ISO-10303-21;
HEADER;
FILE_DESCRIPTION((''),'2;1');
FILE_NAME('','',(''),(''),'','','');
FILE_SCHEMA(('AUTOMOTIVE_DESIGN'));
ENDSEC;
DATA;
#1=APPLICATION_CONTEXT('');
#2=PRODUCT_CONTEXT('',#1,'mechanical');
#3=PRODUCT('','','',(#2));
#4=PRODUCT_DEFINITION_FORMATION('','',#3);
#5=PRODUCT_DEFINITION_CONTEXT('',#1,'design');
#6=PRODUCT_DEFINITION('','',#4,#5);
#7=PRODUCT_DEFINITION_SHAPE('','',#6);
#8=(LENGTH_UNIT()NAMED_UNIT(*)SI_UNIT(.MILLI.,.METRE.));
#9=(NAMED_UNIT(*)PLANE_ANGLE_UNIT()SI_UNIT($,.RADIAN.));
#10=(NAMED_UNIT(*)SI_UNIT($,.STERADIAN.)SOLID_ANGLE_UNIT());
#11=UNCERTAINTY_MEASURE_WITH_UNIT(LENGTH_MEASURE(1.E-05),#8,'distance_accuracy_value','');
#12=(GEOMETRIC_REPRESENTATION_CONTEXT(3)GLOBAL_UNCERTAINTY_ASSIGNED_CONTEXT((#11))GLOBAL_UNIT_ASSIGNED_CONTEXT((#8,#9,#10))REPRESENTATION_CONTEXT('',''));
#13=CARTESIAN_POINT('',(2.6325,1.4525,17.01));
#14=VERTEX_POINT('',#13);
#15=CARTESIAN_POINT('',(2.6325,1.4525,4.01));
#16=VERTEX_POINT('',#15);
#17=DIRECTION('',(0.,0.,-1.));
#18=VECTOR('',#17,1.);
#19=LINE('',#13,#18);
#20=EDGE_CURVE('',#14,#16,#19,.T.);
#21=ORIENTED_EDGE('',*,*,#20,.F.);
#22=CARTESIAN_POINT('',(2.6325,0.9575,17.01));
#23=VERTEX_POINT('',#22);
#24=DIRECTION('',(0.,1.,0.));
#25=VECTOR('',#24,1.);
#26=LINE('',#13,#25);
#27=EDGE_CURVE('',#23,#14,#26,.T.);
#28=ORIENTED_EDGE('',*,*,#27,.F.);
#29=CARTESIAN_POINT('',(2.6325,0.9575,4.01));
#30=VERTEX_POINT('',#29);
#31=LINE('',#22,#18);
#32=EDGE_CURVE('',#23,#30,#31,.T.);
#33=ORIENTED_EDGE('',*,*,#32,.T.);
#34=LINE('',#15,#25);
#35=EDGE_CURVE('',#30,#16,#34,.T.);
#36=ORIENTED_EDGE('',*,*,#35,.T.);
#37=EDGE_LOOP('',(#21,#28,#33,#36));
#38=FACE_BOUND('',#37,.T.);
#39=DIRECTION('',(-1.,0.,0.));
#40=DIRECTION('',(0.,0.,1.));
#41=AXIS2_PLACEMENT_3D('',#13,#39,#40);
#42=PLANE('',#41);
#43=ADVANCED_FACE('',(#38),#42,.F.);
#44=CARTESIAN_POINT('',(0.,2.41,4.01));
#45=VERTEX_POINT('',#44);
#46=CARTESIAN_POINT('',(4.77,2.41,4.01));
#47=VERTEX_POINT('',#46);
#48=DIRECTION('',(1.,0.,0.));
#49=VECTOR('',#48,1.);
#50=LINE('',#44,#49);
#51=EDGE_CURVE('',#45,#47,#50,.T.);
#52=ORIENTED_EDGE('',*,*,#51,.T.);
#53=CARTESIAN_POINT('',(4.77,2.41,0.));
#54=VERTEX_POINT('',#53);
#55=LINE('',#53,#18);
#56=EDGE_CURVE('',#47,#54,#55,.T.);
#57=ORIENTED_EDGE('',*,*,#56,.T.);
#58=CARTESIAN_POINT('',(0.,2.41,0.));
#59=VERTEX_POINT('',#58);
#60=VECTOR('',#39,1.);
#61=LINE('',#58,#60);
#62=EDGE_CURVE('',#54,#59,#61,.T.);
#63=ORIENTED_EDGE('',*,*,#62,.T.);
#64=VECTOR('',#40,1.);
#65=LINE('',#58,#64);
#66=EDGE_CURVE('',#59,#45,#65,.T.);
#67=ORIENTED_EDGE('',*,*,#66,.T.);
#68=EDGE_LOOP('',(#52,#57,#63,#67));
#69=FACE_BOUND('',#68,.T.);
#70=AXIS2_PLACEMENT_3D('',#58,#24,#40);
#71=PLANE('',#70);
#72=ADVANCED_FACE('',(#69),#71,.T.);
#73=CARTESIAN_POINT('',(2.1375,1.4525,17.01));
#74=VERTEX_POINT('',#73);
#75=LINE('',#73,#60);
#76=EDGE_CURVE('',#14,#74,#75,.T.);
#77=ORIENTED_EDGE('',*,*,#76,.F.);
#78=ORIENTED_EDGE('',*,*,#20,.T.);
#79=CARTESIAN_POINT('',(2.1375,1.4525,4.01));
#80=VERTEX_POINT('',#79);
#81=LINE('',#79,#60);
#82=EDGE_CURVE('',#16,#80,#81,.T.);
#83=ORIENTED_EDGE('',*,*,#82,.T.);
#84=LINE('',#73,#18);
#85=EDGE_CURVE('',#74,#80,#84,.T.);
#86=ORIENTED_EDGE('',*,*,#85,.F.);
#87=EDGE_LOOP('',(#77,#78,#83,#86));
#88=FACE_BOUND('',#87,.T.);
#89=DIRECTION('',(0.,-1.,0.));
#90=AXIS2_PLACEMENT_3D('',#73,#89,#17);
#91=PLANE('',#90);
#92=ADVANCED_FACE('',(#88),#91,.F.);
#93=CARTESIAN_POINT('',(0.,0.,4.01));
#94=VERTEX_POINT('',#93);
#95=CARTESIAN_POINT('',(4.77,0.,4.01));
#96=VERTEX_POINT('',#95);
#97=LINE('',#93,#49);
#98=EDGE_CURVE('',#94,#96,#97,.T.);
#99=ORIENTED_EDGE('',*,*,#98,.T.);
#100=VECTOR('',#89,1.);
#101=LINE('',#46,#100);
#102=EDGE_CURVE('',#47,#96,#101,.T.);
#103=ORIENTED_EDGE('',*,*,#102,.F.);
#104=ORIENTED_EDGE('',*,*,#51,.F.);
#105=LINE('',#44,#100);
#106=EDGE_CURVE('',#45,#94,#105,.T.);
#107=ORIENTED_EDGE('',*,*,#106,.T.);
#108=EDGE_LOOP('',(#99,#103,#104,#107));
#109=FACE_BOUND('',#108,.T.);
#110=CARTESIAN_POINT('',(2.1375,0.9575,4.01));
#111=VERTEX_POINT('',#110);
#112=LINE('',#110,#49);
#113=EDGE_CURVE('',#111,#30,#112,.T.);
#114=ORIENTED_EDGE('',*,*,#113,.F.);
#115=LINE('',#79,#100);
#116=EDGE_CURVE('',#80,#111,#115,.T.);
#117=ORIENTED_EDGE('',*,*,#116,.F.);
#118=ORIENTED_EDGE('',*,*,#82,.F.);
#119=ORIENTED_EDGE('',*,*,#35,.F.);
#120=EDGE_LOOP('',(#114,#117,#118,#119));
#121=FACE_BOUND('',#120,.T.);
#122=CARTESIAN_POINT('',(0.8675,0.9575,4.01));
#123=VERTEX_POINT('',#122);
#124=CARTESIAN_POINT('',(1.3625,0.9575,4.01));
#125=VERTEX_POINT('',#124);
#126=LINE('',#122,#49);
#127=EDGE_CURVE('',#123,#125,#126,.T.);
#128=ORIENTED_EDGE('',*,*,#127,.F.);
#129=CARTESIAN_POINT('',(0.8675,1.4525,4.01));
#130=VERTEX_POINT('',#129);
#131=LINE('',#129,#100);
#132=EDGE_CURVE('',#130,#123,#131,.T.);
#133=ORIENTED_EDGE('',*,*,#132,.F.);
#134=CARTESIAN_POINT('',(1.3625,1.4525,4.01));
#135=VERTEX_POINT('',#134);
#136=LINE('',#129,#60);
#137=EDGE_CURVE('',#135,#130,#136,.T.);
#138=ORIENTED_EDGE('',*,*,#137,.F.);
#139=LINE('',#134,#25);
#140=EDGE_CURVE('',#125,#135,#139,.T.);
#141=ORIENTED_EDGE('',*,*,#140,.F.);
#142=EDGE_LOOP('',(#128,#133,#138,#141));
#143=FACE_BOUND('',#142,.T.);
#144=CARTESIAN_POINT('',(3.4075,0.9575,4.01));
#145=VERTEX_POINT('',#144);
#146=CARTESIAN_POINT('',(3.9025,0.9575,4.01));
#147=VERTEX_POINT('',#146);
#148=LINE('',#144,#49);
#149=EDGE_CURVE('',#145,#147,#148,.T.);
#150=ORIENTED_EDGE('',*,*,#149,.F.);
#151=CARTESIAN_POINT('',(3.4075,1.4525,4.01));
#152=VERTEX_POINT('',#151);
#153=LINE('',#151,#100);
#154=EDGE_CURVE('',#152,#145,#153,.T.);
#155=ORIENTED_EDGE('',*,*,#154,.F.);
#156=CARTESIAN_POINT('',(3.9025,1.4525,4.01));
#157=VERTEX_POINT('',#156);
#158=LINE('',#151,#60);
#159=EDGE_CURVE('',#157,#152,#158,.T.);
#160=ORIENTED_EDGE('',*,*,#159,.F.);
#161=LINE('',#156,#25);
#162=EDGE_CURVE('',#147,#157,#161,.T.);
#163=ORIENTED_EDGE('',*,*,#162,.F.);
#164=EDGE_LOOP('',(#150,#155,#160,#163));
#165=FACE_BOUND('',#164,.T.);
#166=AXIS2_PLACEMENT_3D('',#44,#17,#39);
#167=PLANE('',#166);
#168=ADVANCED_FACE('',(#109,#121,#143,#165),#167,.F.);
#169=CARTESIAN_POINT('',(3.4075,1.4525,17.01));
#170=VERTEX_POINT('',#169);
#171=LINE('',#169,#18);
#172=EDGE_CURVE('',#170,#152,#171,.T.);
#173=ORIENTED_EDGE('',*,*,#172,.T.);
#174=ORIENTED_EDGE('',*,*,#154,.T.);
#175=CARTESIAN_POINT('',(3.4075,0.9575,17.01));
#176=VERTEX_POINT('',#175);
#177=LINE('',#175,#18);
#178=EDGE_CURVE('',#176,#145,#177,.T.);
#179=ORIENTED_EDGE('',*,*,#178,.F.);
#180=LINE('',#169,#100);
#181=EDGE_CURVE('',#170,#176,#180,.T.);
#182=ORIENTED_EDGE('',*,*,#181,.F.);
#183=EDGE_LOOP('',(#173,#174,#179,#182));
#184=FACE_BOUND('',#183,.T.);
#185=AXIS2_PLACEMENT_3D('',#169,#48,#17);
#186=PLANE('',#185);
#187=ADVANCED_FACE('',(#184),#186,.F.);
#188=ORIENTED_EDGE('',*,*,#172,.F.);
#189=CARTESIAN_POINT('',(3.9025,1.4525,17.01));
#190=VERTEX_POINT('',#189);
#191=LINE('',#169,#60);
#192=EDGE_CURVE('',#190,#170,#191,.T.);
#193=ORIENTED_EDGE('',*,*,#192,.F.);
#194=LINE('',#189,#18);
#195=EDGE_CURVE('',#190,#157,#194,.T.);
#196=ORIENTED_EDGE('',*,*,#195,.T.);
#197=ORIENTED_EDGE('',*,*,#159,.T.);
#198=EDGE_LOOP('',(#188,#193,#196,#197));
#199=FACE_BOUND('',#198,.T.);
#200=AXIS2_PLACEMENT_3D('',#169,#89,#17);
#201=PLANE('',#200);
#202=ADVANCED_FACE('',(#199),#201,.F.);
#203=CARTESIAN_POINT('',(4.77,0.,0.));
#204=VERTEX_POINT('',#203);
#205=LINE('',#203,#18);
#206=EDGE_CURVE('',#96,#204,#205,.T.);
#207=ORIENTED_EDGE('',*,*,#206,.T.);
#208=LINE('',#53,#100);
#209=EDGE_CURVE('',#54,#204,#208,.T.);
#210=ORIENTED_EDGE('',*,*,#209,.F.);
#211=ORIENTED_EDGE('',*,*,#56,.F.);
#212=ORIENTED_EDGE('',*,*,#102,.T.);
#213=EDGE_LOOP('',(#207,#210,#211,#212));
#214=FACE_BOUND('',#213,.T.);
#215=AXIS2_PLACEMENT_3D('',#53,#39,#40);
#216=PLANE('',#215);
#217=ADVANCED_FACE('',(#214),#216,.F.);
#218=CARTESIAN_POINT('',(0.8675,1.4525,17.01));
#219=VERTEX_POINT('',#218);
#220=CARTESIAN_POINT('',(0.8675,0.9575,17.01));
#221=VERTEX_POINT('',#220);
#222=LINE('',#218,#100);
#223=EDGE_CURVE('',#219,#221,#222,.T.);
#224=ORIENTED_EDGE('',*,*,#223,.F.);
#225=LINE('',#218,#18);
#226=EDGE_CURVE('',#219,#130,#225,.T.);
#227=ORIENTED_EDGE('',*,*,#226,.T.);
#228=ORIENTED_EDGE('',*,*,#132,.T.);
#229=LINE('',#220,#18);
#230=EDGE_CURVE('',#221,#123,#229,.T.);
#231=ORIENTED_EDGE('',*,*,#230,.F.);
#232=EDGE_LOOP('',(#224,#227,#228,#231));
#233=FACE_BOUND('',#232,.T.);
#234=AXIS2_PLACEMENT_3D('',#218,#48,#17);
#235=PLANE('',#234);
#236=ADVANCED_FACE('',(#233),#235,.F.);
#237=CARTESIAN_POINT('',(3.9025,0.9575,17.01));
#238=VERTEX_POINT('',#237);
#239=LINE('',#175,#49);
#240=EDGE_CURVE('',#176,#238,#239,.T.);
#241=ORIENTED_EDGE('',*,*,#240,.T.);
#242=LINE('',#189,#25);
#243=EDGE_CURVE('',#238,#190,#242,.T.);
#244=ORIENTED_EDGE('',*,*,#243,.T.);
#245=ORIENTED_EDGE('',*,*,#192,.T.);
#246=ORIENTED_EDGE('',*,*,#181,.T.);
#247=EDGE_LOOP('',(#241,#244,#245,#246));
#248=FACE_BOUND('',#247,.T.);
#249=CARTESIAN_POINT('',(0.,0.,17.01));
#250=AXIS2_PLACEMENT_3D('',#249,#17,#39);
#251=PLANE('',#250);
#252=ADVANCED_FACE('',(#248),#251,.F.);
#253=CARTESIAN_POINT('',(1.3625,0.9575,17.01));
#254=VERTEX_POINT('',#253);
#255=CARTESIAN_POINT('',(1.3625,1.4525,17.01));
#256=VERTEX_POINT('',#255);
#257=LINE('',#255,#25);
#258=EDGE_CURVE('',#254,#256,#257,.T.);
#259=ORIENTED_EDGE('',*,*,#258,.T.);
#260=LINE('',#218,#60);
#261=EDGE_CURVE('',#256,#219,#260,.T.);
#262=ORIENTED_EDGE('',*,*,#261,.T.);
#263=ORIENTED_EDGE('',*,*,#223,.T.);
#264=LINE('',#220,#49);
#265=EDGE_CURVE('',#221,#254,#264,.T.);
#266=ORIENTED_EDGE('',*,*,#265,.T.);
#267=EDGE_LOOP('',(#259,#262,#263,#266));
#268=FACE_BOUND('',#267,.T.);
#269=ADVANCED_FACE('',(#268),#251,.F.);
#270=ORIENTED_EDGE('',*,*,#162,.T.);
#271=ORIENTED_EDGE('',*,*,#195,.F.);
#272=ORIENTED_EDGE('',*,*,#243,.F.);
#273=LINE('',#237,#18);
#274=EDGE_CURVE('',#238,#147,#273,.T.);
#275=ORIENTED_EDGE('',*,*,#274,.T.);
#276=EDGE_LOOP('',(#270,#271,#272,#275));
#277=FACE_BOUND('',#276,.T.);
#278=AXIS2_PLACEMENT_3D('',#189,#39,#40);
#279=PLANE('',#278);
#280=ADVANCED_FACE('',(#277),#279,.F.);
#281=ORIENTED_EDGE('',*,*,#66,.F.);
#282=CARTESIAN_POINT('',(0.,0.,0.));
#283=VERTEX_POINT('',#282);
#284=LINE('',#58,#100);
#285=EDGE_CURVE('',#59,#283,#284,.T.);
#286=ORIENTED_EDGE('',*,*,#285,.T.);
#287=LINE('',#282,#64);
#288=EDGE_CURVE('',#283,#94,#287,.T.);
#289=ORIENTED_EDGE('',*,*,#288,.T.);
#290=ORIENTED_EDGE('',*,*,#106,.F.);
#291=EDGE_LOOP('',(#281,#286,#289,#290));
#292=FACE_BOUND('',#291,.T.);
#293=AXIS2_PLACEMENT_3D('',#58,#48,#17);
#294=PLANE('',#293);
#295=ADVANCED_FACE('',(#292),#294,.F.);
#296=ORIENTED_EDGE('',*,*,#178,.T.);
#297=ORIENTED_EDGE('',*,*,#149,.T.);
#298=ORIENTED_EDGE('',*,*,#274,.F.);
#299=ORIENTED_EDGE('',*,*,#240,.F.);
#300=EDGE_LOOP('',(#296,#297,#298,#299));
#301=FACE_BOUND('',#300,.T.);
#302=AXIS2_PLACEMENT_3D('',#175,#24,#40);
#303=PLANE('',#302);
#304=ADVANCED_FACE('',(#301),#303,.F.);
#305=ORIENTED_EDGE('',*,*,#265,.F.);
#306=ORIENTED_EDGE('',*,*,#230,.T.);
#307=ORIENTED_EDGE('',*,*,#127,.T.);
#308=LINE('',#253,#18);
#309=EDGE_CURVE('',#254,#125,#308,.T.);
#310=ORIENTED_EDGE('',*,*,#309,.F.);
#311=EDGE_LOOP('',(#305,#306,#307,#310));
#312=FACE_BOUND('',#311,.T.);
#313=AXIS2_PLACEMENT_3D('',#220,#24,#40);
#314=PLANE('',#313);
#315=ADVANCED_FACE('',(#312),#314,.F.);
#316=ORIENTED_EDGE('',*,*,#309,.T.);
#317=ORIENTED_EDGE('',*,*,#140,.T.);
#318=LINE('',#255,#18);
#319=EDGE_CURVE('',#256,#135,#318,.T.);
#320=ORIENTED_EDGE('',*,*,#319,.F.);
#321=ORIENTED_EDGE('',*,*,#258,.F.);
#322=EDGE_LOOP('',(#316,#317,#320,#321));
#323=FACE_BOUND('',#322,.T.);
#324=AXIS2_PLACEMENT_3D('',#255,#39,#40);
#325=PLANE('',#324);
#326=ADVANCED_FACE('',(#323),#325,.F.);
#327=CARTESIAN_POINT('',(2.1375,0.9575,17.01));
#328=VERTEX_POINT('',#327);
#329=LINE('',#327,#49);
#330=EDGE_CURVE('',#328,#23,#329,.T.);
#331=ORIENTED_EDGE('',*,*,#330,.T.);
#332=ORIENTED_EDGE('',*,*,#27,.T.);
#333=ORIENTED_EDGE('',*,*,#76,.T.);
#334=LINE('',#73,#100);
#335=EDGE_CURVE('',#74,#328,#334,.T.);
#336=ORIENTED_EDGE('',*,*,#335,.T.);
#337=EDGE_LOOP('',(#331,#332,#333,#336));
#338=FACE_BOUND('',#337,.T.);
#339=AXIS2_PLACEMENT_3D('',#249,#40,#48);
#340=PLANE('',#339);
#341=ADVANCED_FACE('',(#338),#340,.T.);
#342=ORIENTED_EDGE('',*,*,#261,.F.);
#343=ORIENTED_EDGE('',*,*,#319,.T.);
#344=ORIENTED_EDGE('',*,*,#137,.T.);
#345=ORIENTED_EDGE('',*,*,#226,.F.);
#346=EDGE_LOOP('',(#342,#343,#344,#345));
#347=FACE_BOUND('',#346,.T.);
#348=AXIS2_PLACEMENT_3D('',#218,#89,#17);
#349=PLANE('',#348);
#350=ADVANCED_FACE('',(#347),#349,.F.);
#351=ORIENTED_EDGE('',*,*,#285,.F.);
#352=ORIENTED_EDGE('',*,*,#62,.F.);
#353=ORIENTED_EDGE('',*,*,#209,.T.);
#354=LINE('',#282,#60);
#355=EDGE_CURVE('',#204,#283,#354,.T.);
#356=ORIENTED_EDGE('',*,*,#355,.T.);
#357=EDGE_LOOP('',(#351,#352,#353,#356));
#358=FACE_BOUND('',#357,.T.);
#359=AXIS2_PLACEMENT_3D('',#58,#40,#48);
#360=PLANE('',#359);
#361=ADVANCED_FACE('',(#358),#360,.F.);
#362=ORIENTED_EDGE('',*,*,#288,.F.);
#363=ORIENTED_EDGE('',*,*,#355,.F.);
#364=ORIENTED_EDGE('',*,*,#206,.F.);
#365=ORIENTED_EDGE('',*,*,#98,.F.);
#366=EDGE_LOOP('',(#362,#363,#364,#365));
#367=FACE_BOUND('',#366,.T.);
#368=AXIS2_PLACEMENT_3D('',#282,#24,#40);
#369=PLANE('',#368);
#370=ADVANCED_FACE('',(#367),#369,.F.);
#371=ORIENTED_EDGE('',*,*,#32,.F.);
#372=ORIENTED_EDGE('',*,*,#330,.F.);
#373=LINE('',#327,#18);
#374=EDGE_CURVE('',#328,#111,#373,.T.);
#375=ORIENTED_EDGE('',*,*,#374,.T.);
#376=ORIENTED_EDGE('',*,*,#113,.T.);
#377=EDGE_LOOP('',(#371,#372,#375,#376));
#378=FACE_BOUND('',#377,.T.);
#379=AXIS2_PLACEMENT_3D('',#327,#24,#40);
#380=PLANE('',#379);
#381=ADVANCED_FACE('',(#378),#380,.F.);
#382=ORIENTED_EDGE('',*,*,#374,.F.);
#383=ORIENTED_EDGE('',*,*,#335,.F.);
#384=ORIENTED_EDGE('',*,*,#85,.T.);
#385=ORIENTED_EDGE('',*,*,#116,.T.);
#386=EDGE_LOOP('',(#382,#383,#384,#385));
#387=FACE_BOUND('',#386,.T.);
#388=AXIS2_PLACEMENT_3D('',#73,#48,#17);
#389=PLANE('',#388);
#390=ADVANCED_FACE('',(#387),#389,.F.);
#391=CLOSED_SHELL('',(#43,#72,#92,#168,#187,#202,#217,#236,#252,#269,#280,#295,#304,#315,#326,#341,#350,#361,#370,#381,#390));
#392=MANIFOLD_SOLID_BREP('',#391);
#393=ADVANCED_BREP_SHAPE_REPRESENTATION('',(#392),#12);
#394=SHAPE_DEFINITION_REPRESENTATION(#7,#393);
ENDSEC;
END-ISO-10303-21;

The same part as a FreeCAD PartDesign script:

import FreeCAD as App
import Part
import Sketcher
from FreeCAD import Vector
Q = App.Units.Quantity


def add_polygon(sketch, points):
    """Adds a closed chain of lines whose ends are joined by coincident constraints."""
    first, n = sketch.GeometryCount, len(points)
    for a, b in zip(points, points[1:] + points[:1]):
        sketch.addGeometry(Part.LineSegment(App.Vector(*a, 0), App.Vector(*b, 0)), False)
    for i in range(n):
        sketch.addConstraint(Sketcher.Constraint("Coincident", first + i, 2, first + (i + 1) % n, 1))

doc = App.newDocument("Part")
body = doc.addObject("PartDesign::Body", "Body")

sketch1 = body.newObject("Sketcher::SketchObject", "Sketch")
sketch1.AttachmentSupport = (doc.getObject("XZ_Plane"), [""])
sketch1.MapMode = "FlatFace"
add_polygon(sketch1, [(0, 0), (0, 4.01), (4.77, 4.01), (4.77, 0)])
sketch1.addConstraint([
    Sketcher.Constraint("Vertical", 0),
    Sketcher.Constraint("Horizontal", 1),
    Sketcher.Constraint("Vertical", 2),
    Sketcher.Constraint("Horizontal", 3),
    Sketcher.Constraint("Coincident", 3, 2, -1, 1),
    Sketcher.Constraint("DistanceX", 1, 1, 1, 2, Q("4.77 mm")),
    Sketcher.Constraint("DistanceY", 0, 1, 0, 2, Q("4.01 mm")),
])
pad1 = body.newObject("PartDesign::Pad", "Pad")
pad1.Profile = sketch1
pad1.Length = 2.41
pad1.Reversed = True

sketch2 = body.newObject("Sketcher::SketchObject", "Sketch001")
sketch2.AttachmentSupport = (doc.getObject("XY_Plane"), [""])
sketch2.MapMode = "FlatFace"
sketch2.AttachmentOffset = App.Placement(Vector(0, 0, 4.01), App.Rotation())
add_polygon(sketch2, [(3.4075, 1.4525), (3.4075, 0.9575), (3.9025, 0.9575), (3.9025, 1.4525)])
add_polygon(sketch2, [(2.1375, 1.4525), (2.1375, 0.9575), (2.6325, 0.9575), (2.6325, 1.4525)])
add_polygon(sketch2, [(0.8675, 1.4525), (0.8675, 0.9575), (1.3625, 0.9575), (1.3625, 1.4525)])
sketch2.addConstraint([
    Sketcher.Constraint("Vertical", 0),
    Sketcher.Constraint("Horizontal", 1),
    Sketcher.Constraint("Vertical", 2),
    Sketcher.Constraint("Horizontal", 3),
    Sketcher.Constraint("Vertical", 4),
    Sketcher.Constraint("Horizontal", 5),
    Sketcher.Constraint("Vertical", 6),
    Sketcher.Constraint("Horizontal", 7),
    Sketcher.Constraint("Vertical", 8),
    Sketcher.Constraint("Horizontal", 9),
    Sketcher.Constraint("Vertical", 10),
    Sketcher.Constraint("Horizontal", 11),
    Sketcher.Constraint("Horizontal", 1, 2, 4, 2),
    Sketcher.Constraint("Horizontal", 3, 2, 6, 2),
    Sketcher.Constraint("Horizontal", 5, 2, 8, 2),
    Sketcher.Constraint("Horizontal", 7, 2, 10, 2),
    Sketcher.Constraint("Equal", 3, 5),
    Sketcher.Constraint("Equal", 7, 9),
    Sketcher.Constraint("Equal", 11, 0),
    Sketcher.Constraint("DistanceX", 1, 1, 1, 2, Q("0.495 mm")),
    Sketcher.Constraint("DistanceX", 4, 2, 0, 2, Q("1.27 mm")),
    Sketcher.Constraint("DistanceX", 8, 2, 4, 2, Q("1.27 mm")),
    Sketcher.Constraint("DistanceX", -1, 1, 0, 2, Q("3.4075 mm")),
    Sketcher.Constraint("DistanceY", -1, 1, 0, 2, Q("0.9575 mm")),
])
pad2 = body.newObject("PartDesign::Pad", "Pad001")
pad2.Profile = sketch2
pad2.Length = 13

doc.recompute()
